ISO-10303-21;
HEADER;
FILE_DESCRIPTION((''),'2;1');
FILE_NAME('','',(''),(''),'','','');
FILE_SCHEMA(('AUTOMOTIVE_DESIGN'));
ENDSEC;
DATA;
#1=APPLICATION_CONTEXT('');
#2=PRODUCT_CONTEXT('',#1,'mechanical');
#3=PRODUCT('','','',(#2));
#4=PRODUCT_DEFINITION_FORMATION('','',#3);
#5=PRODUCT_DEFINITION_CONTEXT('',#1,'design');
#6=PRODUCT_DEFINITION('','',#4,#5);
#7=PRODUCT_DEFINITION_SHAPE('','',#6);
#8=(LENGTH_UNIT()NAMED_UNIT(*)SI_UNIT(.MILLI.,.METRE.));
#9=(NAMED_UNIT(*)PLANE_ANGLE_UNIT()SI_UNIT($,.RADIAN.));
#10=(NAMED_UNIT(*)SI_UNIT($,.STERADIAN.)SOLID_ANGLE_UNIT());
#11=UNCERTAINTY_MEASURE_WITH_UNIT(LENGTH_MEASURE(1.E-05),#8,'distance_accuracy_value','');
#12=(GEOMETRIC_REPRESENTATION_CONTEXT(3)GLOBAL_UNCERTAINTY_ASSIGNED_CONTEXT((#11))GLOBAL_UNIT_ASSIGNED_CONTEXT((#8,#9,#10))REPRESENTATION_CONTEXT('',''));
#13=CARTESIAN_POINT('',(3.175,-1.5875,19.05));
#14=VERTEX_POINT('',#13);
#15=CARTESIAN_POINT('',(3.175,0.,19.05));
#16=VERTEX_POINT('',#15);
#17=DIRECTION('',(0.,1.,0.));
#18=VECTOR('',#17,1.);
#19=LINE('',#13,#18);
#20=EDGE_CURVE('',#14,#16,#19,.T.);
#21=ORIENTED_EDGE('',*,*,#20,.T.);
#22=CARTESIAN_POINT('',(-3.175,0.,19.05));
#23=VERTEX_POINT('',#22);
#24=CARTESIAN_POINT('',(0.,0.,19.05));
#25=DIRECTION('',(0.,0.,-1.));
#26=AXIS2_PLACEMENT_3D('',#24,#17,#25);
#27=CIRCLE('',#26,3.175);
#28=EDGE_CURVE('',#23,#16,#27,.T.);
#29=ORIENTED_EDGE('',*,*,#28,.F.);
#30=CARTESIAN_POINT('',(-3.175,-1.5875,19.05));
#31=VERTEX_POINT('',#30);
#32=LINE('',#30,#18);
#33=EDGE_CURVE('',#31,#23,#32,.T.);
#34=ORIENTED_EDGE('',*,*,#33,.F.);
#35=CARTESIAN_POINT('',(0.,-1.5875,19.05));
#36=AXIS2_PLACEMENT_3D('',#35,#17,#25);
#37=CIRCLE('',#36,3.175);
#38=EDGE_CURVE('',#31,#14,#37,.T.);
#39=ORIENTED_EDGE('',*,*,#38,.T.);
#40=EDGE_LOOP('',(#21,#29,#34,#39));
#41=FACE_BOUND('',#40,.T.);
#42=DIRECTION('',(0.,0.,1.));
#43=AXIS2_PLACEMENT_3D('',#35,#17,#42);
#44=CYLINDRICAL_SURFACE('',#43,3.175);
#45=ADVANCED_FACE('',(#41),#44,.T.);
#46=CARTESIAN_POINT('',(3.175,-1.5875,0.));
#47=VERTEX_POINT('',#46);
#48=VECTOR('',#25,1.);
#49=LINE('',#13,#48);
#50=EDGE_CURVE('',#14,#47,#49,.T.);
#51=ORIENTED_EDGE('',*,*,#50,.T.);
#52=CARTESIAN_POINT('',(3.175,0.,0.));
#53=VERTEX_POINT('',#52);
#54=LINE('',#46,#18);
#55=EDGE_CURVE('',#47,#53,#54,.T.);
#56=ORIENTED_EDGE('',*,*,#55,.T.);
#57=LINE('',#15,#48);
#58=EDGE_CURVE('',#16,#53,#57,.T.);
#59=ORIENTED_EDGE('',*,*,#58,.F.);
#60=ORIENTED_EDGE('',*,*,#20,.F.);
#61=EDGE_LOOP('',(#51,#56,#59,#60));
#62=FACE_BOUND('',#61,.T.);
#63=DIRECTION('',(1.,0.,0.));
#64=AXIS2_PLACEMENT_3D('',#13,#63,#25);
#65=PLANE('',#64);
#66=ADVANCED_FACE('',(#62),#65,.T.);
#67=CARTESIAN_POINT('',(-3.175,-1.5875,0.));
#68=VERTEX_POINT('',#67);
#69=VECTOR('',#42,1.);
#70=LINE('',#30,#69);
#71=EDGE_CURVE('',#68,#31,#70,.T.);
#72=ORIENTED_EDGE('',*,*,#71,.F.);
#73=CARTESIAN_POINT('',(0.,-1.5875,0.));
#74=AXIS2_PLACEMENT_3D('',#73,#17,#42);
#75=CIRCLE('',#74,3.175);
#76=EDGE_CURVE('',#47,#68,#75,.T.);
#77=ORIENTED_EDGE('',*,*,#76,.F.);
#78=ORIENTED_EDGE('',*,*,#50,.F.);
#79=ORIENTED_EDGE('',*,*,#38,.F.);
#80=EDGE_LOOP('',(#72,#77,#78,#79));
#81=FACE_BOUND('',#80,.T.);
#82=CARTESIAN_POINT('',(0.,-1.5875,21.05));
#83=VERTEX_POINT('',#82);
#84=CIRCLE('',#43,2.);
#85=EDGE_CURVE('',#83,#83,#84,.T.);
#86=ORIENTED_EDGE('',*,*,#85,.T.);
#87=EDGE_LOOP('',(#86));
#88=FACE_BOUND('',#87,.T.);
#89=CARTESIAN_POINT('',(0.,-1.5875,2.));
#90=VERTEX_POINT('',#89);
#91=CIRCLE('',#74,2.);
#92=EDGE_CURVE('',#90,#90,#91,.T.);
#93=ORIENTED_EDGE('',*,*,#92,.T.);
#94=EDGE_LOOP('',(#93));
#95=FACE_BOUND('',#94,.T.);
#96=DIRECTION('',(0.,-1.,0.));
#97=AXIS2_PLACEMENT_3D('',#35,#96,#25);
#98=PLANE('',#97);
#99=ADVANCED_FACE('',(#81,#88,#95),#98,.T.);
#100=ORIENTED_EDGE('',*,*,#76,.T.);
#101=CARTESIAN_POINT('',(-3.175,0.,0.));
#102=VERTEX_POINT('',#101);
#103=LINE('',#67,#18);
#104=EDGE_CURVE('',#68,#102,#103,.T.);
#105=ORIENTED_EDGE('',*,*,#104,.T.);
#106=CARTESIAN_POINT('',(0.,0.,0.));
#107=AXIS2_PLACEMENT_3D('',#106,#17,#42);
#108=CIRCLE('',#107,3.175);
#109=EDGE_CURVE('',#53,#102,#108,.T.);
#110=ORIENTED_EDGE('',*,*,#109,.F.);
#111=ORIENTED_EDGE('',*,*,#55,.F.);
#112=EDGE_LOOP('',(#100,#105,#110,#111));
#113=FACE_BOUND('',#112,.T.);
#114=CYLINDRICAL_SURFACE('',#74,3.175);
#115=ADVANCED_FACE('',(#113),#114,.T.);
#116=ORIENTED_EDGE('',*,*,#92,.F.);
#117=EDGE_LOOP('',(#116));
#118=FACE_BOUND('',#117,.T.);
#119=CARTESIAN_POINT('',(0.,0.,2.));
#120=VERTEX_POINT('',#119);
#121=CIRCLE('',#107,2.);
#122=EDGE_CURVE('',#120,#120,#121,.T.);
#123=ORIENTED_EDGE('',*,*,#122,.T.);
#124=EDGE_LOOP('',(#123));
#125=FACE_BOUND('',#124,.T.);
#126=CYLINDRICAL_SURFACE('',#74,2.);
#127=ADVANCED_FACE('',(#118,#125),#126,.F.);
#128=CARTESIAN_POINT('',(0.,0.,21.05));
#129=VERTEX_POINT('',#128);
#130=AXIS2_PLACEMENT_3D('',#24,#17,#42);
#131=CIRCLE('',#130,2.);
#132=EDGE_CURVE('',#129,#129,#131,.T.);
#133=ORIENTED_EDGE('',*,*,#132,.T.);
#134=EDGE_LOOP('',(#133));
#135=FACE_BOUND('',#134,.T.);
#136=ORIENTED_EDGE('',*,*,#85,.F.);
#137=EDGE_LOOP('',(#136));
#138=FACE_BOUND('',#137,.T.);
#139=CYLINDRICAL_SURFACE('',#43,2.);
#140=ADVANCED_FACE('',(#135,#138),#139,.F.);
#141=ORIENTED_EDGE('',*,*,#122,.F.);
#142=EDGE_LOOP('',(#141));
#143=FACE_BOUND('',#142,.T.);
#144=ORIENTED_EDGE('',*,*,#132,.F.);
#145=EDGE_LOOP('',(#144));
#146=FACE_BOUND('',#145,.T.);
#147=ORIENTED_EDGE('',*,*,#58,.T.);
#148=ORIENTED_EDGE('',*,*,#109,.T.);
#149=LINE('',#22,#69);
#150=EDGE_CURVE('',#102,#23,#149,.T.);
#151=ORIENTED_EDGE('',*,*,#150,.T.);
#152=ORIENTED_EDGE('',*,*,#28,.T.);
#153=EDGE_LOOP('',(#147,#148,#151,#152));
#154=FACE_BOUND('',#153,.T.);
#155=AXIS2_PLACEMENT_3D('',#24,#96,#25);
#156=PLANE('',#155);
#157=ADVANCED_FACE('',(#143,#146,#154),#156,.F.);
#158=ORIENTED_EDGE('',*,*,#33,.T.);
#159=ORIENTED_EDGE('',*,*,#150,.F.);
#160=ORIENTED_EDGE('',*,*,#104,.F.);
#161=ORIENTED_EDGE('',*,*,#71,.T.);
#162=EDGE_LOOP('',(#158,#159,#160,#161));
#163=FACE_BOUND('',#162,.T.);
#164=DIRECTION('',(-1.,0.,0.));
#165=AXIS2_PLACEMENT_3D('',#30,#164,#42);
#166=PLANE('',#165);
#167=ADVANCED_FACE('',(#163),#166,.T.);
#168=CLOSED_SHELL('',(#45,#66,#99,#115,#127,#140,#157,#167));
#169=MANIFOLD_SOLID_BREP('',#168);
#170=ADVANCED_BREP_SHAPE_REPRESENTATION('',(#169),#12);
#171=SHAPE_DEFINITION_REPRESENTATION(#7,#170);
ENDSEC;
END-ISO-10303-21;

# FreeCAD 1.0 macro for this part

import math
import FreeCAD as App
import Part
import Sketcher
Q = App.Units.Quantity

doc = App.newDocument("Part")
body = doc.addObject("PartDesign::Body", "Body")

sketch1 = body.newObject("Sketcher::SketchObject", "Sketch")
sketch1.AttachmentSupport = (doc.getObject("XZ_Plane"), [""])
sketch1.MapMode = "FlatFace"
sketch1.addGeometry([
    Part.LineSegment(App.Vector(3.2, 19.1, 0), App.Vector(3.2, 0, 0)),
    Part.ArcOfCircle(Part.Circle(App.Vector(0, 0, 0), App.Vector(0, 0, 1), 3.2), math.radians(180), math.radians(360)),
    Part.LineSegment(App.Vector(-3.2, 0, 0), App.Vector(-3.2, 19.1, 0)),
    Part.ArcOfCircle(Part.Circle(App.Vector(0, 19.1, 0), App.Vector(0, 0, 1), 3.2), math.radians(0), math.radians(180)),
    Part.Circle(App.Vector(0, 19.1, 0), App.Vector(0, 0, 1), 2),
    Part.Circle(App.Vector(0, 0, 0), App.Vector(0, 0, 1), 2),
], False)
sketch1.addConstraint([
    Sketcher.Constraint("Tangent", 0, 2, 1, 2),
    Sketcher.Constraint("Tangent", 1, 1, 2, 1),
    Sketcher.Constraint("Tangent", 2, 2, 3, 2),
    Sketcher.Constraint("Tangent", 3, 1, 0, 1),
    Sketcher.Constraint("Vertical", 0),
    Sketcher.Constraint("Vertical", 2),
    Sketcher.Constraint("Coincident", 1, 3, -1, 1),
    Sketcher.Constraint("Coincident", 5, 3, -1, 1),
    Sketcher.Constraint("Coincident", 4, 3, 3, 3),
    Sketcher.Constraint("Equal", 4, 5),
    Sketcher.Constraint("Radius", 1, Q("0.125 in")),
    Sketcher.Constraint("DistanceY", 0, 2, 0, 1, Q("0.75 in")),
    Sketcher.Constraint("Diameter", 4, 4.0),
])
pad1 = body.newObject("PartDesign::Pad", "Pad")
pad1.Profile = sketch1
pad1.Length = Q("0.0625 in")

doc.recompute()
